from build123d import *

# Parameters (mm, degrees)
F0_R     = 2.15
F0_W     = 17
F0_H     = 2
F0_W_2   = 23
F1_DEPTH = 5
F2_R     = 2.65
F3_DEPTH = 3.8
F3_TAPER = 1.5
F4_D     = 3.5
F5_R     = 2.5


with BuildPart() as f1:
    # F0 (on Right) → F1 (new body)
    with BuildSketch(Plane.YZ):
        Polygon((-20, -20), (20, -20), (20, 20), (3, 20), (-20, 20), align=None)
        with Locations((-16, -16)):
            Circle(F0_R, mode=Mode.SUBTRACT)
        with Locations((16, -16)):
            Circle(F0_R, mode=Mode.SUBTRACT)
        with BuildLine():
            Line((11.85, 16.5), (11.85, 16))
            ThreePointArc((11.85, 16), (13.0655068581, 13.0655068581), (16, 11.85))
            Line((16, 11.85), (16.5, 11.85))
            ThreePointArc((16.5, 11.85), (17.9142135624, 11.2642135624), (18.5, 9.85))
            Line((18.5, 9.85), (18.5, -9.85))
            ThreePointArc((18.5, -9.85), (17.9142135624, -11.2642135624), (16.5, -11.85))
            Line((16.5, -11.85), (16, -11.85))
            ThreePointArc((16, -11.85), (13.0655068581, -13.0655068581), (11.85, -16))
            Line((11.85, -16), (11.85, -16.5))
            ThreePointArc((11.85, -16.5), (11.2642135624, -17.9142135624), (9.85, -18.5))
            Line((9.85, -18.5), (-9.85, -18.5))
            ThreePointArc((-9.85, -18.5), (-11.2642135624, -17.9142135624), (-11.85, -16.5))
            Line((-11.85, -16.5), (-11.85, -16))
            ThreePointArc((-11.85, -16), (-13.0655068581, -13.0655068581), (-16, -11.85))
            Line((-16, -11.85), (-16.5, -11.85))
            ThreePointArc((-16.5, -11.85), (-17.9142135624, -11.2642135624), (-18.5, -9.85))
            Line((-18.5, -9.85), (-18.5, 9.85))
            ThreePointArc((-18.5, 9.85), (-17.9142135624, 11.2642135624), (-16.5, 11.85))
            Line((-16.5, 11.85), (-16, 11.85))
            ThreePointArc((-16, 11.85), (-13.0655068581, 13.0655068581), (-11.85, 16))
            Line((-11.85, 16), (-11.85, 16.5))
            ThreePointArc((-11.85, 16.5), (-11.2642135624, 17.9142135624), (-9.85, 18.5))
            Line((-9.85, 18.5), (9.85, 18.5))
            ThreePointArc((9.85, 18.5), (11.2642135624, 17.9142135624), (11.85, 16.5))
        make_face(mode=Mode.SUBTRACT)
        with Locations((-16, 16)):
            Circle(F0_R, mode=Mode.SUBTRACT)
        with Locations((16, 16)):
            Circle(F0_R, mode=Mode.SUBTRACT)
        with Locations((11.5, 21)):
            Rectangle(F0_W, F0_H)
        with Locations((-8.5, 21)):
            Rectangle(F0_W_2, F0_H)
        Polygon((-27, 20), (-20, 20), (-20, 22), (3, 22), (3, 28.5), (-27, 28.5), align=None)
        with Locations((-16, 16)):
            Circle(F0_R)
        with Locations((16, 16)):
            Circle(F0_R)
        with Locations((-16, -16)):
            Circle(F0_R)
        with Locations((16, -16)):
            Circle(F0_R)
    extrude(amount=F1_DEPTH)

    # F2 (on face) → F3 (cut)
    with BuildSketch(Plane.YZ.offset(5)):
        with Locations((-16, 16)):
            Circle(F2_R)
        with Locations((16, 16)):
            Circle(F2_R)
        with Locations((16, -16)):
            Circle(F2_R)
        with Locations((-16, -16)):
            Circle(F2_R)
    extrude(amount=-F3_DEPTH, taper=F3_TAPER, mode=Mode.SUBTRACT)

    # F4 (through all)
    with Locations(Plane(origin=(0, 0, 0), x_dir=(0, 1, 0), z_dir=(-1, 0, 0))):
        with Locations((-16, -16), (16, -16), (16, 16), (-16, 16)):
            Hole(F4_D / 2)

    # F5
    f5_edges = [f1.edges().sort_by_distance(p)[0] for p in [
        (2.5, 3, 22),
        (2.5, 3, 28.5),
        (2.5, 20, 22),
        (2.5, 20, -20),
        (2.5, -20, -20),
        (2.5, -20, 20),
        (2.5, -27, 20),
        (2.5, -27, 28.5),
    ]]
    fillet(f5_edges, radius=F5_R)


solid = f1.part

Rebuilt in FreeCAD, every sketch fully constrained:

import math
import FreeCAD as App
import Part
import Sketcher

V = App.Vector
Q = App.Units.Quantity


def edges_at(feature, points):
    """Names of the edges that pass closest to the given points."""
    edges = feature.Shape.Edges
    near = lambda p: min(range(len(edges)), key=lambda i: edges[i].distToShape(Part.Vertex(*p))[0])
    return sorted({f"Edge{near(p) + 1}" for p in points})

doc = App.newDocument("Part")
body = doc.addObject("PartDesign::Body", "Body")

sketch1 = body.newObject("Sketcher::SketchObject", "Sketch")
sketch1.AttachmentSupport = (doc.getObject("YZ_Plane"), [""])
sketch1.MapMode = "FlatFace"
sketch1.addGeometry(Part.LineSegment(V(-20, -20, 0), V(20, -20, 0)), False)
sketch1.addGeometry(Part.LineSegment(V(20, -20, 0), V(20, 22, 0)), False)
sketch1.addGeometry(Part.LineSegment(V(20, 22, 0), V(3, 22, 0)), False)
sketch1.addGeometry(Part.LineSegment(V(3, 22, 0), V(3, 28.5, 0)), False)
sketch1.addGeometry(Part.LineSegment(V(3, 28.5, 0), V(-27, 28.5, 0)), False)
sketch1.addGeometry(Part.LineSegment(V(-27, 28.5, 0), V(-27, 20, 0)), False)
sketch1.addGeometry(Part.LineSegment(V(-27, 20, 0), V(-20, 20, 0)), False)
sketch1.addGeometry(Part.LineSegment(V(-20, 20, 0), V(-20, -20, 0)), False)
sketch1.addGeometry(Part.ArcOfCircle(Part.Circle(V(9.85, 16.5, 0), V(0, 0, 1), 2), math.radians(0), math.radians(90)), False)
sketch1.addGeometry(Part.LineSegment(V(11.85, 16.5, 0), V(11.85, 16, 0)), False)
sketch1.addGeometry(Part.ArcOfCircle(Part.Circle(V(16, 16, 0), V(0, 0, 1), 4.15), math.radians(180), math.radians(270)), False)
sketch1.addGeometry(Part.LineSegment(V(16, 11.85, 0), V(16.5, 11.85, 0)), False)
sketch1.addGeometry(Part.ArcOfCircle(Part.Circle(V(16.5, 9.85, 0), V(0, 0, 1), 2), math.radians(0), math.radians(90)), False)
sketch1.addGeometry(Part.LineSegment(V(18.5, 9.85, 0), V(18.5, -9.85, 0)), False)
sketch1.addGeometry(Part.ArcOfCircle(Part.Circle(V(16.5, -9.85, 0), V(0, 0, 1), 2), math.radians(-90), math.radians(0)), False)
sketch1.addGeometry(Part.LineSegment(V(16.5, -11.85, 0), V(16, -11.85, 0)), False)
sketch1.addGeometry(Part.ArcOfCircle(Part.Circle(V(16, -16, 0), V(0, 0, 1), 4.15), math.radians(90), math.radians(180)), False)
sketch1.addGeometry(Part.LineSegment(V(11.85, -16, 0), V(11.85, -16.5, 0)), False)
sketch1.addGeometry(Part.ArcOfCircle(Part.Circle(V(9.85, -16.5, 0), V(0, 0, 1), 2), math.radians(-90), math.radians(0)), False)
sketch1.addGeometry(Part.LineSegment(V(9.85, -18.5, 0), V(-9.85, -18.5, 0)), False)
sketch1.addGeometry(Part.ArcOfCircle(Part.Circle(V(-9.85, -16.5, 0), V(0, 0, 1), 2), math.radians(180), math.radians(270)), False)
sketch1.addGeometry(Part.LineSegment(V(-11.85, -16.5, 0), V(-11.85, -16, 0)), False)
sketch1.addGeometry(Part.ArcOfCircle(Part.Circle(V(-16, -16, 0), V(0, 0, 1), 4.15), math.radians(0), math.radians(90)), False)
sketch1.addGeometry(Part.LineSegment(V(-16, -11.85, 0), V(-16.5, -11.85, 0)), False)
sketch1.addGeometry(Part.ArcOfCircle(Part.Circle(V(-16.5, -9.85, 0), V(0, 0, 1), 2), math.radians(180), math.radians(270)), False)
sketch1.addGeometry(Part.LineSegment(V(-18.5, -9.85, 0), V(-18.5, 9.85, 0)), False)
sketch1.addGeometry(Part.ArcOfCircle(Part.Circle(V(-16.5, 9.85, 0), V(0, 0, 1), 2), math.radians(90), math.radians(180)), False)
sketch1.addGeometry(Part.LineSegment(V(-16.5, 11.85, 0), V(-16, 11.85, 0)), False)
sketch1.addGeometry(Part.ArcOfCircle(Part.Circle(V(-16, 16, 0), V(0, 0, 1), 4.15), math.radians(-90), math.radians(0)), False)
sketch1.addGeometry(Part.LineSegment(V(-11.85, 16, 0), V(-11.85, 16.5, 0)), False)
sketch1.addGeometry(Part.ArcOfCircle(Part.Circle(V(-9.85, 16.5, 0), V(0, 0, 1), 2), math.radians(90), math.radians(180)), False)
sketch1.addGeometry(Part.LineSegment(V(-9.85, 18.5, 0), V(9.85, 18.5, 0)), False)
sketch1.addConstraint(Sketcher.Constraint("Coincident", 0, 2, 1, 1))
sketch1.addConstraint(Sketcher.Constraint("Coincident", 1, 2, 2, 1))
sketch1.addConstraint(Sketcher.Constraint("Coincident", 2, 2, 3, 1))
sketch1.addConstraint(Sketcher.Constraint("Coincident", 3, 2, 4, 1))
sketch1.addConstraint(Sketcher.Constraint("Coincident", 4, 2, 5, 1))
sketch1.addConstraint(Sketcher.Constraint("Coincident", 5, 2, 6, 1))
sketch1.addConstraint(Sketcher.Constraint("Coincident", 6, 2, 7, 1))
sketch1.addConstraint(Sketcher.Constraint("Coincident", 7, 2, 0, 1))
sketch1.addConstraint(Sketcher.Constraint("Tangent", 8, 1, 9, 1))
sketch1.addConstraint(Sketcher.Constraint("Tangent", 9, 2, 10, 1))
sketch1.addConstraint(Sketcher.Constraint("Tangent", 10, 2, 11, 1))
sketch1.addConstraint(Sketcher.Constraint("Tangent", 11, 2, 12, 2))
sketch1.addConstraint(Sketcher.Constraint("Tangent", 12, 1, 13, 1))
sketch1.addConstraint(Sketcher.Constraint("Tangent", 13, 2, 14, 2))
sketch1.addConstraint(Sketcher.Constraint("Tangent", 14, 1, 15, 1))
sketch1.addConstraint(Sketcher.Constraint("Tangent", 15, 2, 16, 1))
sketch1.addConstraint(Sketcher.Constraint("Tangent", 16, 2, 17, 1))
sketch1.addConstraint(Sketcher.Constraint("Tangent", 17, 2, 18, 2))
sketch1.addConstraint(Sketcher.Constraint("Tangent", 18, 1, 19, 1))
sketch1.addConstraint(Sketcher.Constraint("Tangent", 19, 2, 20, 2))
sketch1.addConstraint(Sketcher.Constraint("Tangent", 20, 1, 21, 1))
sketch1.addConstraint(Sketcher.Constraint("Tangent", 21, 2, 22, 1))
sketch1.addConstraint(Sketcher.Constraint("Tangent", 22, 2, 23, 1))
sketch1.addConstraint(Sketcher.Constraint("Tangent", 23, 2, 24, 2))
sketch1.addConstraint(Sketcher.Constraint("Tangent", 24, 1, 25, 1))
sketch1.addConstraint(Sketcher.Constraint("Tangent", 25, 2, 26, 2))
sketch1.addConstraint(Sketcher.Constraint("Tangent", 26, 1, 27, 1))
sketch1.addConstraint(Sketcher.Constraint("Tangent", 27, 2, 28, 1))
sketch1.addConstraint(Sketcher.Constraint("Tangent", 28, 2, 29, 1))
sketch1.addConstraint(Sketcher.Constraint("Tangent", 29, 2, 30, 2))
sketch1.addConstraint(Sketcher.Constraint("Tangent", 30, 1, 31, 1))
sketch1.addConstraint(Sketcher.Constraint("Tangent", 31, 2, 8, 2))
sketch1.addConstraint(Sketcher.Constraint("Horizontal", 0))
sketch1.addConstraint(Sketcher.Constraint("Vertical", 1))
sketch1.addConstraint(Sketcher.Constraint("Horizontal", 2))
sketch1.addConstraint(Sketcher.Constraint("Vertical", 3))
sketch1.addConstraint(Sketcher.Constraint("Horizontal", 4))
sketch1.addConstraint(Sketcher.Constraint("Vertical", 5))
sketch1.addConstraint(Sketcher.Constraint("Horizontal", 6))
sketch1.addConstraint(Sketcher.Constraint("Vertical", 7))
sketch1.addConstraint(Sketcher.Constraint("Vertical", 9))
sketch1.addConstraint(Sketcher.Constraint("Horizontal", 11))
sketch1.addConstraint(Sketcher.Constraint("Vertical", 13))
sketch1.addConstraint(Sketcher.Constraint("Horizontal", 15))
sketch1.addConstraint(Sketcher.Constraint("Vertical", 17))
sketch1.addConstraint(Sketcher.Constraint("Horizontal", 19))
sketch1.addConstraint(Sketcher.Constraint("Vertical", 21))
sketch1.addConstraint(Sketcher.Constraint("Horizontal", 23))
sketch1.addConstraint(Sketcher.Constraint("Vertical", 25))
sketch1.addConstraint(Sketcher.Constraint("Horizontal", 27))
sketch1.addConstraint(Sketcher.Constraint("Vertical", 29))
sketch1.addConstraint(Sketcher.Constraint("Horizontal", 31))
sketch1.addConstraint(Sketcher.Constraint("Equal", 8, 12))
sketch1.addConstraint(Sketcher.Constraint("Equal", 12, 14))
sketch1.addConstraint(Sketcher.Constraint("Equal", 10, 16))
sketch1.addConstraint(Sketcher.Constraint("Equal", 14, 18))
sketch1.addConstraint(Sketcher.Constraint("Equal", 18, 20))
sketch1.addConstraint(Sketcher.Constraint("Equal", 16, 22))
sketch1.addConstraint(Sketcher.Constraint("Equal", 20, 24))
sketch1.addConstraint(Sketcher.Constraint("Equal", 24, 26))
sketch1.addConstraint(Sketcher.Constraint("Equal", 22, 28))
sketch1.addConstraint(Sketcher.Constraint("Equal", 26, 30))
sketch1.addConstraint(Sketcher.Constraint("Symmetric", 8, 3, 20, 3, -1, 1))
sketch1.addConstraint(Sketcher.Constraint("Symmetric", 12, 3, 24, 3, -1, 1))
sketch1.addConstraint(Sketcher.Constraint("Symmetric", 16, 3, 28, 3, -1, 1))
sketch1.addConstraint(Sketcher.Constraint("Symmetric", 0, 2, 6, 2, -1, 1))
sketch1.addConstraint(Sketcher.Constraint("Symmetric", 16, 3, 22, 3, -2))
sketch1.addConstraint(Sketcher.Constraint("Equal", 0, 7))
sketch1.addConstraint(Sketcher.Constraint("Equal", 27, 9))
sketch1.addConstraint(Sketcher.Constraint("Equal", 31, 13))
sketch1.addConstraint(Sketcher.Constraint("Radius", 8, Q("2 mm")))
sketch1.addConstraint(Sketcher.Constraint("DistanceX", 0, 1, 0, 2, Q("40 mm")))
sketch1.addConstraint(Sketcher.Constraint("DistanceX", 2, 2, 2, 1, Q("17 mm")))
sketch1.addConstraint(Sketcher.Constraint("DistanceX", 4, 2, 4, 1, Q("30 mm")))
sketch1.addConstraint(Sketcher.Constraint("DistanceY", 1, 1, 1, 2, Q("42 mm")))
sketch1.addConstraint(Sketcher.Constraint("Radius", 10, Q("4.15 mm")))
sketch1.addConstraint(Sketcher.Constraint("DistanceX", 11, 1, 11, 2, Q("0.5 mm")))
sketch1.addConstraint(Sketcher.Constraint("DistanceX", 19, 2, 19, 1, Q("19.7 mm")))
sketch1.addConstraint(Sketcher.Constraint("DistanceY", 3, 1, 3, 2, Q("6.5 mm")))
pad1 = body.newObject("PartDesign::Pad", "Pad")
pad1.Profile = sketch1
pad1.Length = 5

sketch2 = body.newObject("Sketcher::SketchObject", "Sketch001")
sketch2.AttachmentSupport = (doc.getObject("YZ_Plane"), [""])
sketch2.MapMode = "FlatFace"
sketch2.AttachmentOffset = App.Placement(V(0, 0, 5), App.Rotation())
sketch2.addGeometry(Part.Circle(V(-16, 16, 0), V(0, 0, 1), 2.65), False)
sketch2.addGeometry(Part.Circle(V(16, 16, 0), V(0, 0, 1), 2.65), False)
sketch2.addGeometry(Part.Circle(V(16, -16, 0), V(0, 0, 1), 2.65), False)
sketch2.addGeometry(Part.Circle(V(-16, -16, 0), V(0, 0, 1), 2.65), False)
sketch2.addConstraint(Sketcher.Constraint("Equal", 0, 1))
sketch2.addConstraint(Sketcher.Constraint("Equal", 1, 2))
sketch2.addConstraint(Sketcher.Constraint("Equal", 2, 3))
sketch2.addConstraint(Sketcher.Constraint("Symmetric", 0, 3, 2, 3, -1, 1))
sketch2.addConstraint(Sketcher.Constraint("Symmetric", 1, 3, 3, 3, -1, 1))
sketch2.addConstraint(Sketcher.Constraint("Symmetric", 0, 3, 1, 3, -2))
sketch2.addConstraint(Sketcher.Constraint("Diameter", 0, Q("5.3 mm")))
sketch2.addConstraint(Sketcher.Constraint("DistanceX", 0, 3, -1, 1, Q("16 mm")))
sketch2.addConstraint(Sketcher.Constraint("DistanceY", -1, 1, 0, 3, Q("16 mm")))
pocket1 = body.newObject("PartDesign::Pocket", "Pocket")
pocket1.Profile = sketch2
pocket1.Length = 3.8
pocket1.TaperAngle = -1.5

sketch3 = body.newObject("Sketcher::SketchObject", "Sketch002")
sketch3.AttachmentSupport = (doc.getObject("YZ_Plane"), [""])
sketch3.MapMode = "FlatFace"
sketch3.addGeometry(Part.Circle(V(-16, 16, 0), V(0, 0, 1), 1.75), False)
sketch3.addGeometry(Part.Circle(V(16, 16, 0), V(0, 0, 1), 1.75), False)
sketch3.addGeometry(Part.Circle(V(16, -16, 0), V(0, 0, 1), 1.75), False)
sketch3.addGeometry(Part.Circle(V(-16, -16, 0), V(0, 0, 1), 1.75), False)
sketch3.addConstraint(Sketcher.Constraint("Equal", 0, 1))
sketch3.addConstraint(Sketcher.Constraint("Equal", 1, 2))
sketch3.addConstraint(Sketcher.Constraint("Equal", 2, 3))
sketch3.addConstraint(Sketcher.Constraint("Symmetric", 0, 3, 2, 3, -1, 1))
sketch3.addConstraint(Sketcher.Constraint("Symmetric", 1, 3, 3, 3, -1, 1))
sketch3.addConstraint(Sketcher.Constraint("Symmetric", 0, 3, 1, 3, -2))
sketch3.addConstraint(Sketcher.Constraint("Diameter", 0, Q("3.5 mm")))
sketch3.addConstraint(Sketcher.Constraint("DistanceX", 0, 3, -1, 1, Q("16 mm")))
sketch3.addConstraint(Sketcher.Constraint("DistanceY", -1, 1, 0, 3, Q("16 mm")))
doc.recompute()
hole = body.newObject("PartDesign::Hole", "Hole")
hole.Profile = sketch3
hole.ThreadType = "None"
hole.Diameter = 3.5
hole.DepthType = "ThroughAll"
hole.Reversed = True
doc.recompute()

fillet = body.newObject("PartDesign::Fillet", "Fillet")
fillet.Base = (hole, edges_at(hole, [
    (2.5, 3, 22),
    (2.5, 3, 28.5),
    (2.5, 20, 22),
    (2.5, 20, -20),
    (2.5, -20, -20),
    (2.5, -20, 20),
    (2.5, -27, 20),
    (2.5, -27, 28.5),
]))
fillet.Radius = 2.5

doc.recompute()
